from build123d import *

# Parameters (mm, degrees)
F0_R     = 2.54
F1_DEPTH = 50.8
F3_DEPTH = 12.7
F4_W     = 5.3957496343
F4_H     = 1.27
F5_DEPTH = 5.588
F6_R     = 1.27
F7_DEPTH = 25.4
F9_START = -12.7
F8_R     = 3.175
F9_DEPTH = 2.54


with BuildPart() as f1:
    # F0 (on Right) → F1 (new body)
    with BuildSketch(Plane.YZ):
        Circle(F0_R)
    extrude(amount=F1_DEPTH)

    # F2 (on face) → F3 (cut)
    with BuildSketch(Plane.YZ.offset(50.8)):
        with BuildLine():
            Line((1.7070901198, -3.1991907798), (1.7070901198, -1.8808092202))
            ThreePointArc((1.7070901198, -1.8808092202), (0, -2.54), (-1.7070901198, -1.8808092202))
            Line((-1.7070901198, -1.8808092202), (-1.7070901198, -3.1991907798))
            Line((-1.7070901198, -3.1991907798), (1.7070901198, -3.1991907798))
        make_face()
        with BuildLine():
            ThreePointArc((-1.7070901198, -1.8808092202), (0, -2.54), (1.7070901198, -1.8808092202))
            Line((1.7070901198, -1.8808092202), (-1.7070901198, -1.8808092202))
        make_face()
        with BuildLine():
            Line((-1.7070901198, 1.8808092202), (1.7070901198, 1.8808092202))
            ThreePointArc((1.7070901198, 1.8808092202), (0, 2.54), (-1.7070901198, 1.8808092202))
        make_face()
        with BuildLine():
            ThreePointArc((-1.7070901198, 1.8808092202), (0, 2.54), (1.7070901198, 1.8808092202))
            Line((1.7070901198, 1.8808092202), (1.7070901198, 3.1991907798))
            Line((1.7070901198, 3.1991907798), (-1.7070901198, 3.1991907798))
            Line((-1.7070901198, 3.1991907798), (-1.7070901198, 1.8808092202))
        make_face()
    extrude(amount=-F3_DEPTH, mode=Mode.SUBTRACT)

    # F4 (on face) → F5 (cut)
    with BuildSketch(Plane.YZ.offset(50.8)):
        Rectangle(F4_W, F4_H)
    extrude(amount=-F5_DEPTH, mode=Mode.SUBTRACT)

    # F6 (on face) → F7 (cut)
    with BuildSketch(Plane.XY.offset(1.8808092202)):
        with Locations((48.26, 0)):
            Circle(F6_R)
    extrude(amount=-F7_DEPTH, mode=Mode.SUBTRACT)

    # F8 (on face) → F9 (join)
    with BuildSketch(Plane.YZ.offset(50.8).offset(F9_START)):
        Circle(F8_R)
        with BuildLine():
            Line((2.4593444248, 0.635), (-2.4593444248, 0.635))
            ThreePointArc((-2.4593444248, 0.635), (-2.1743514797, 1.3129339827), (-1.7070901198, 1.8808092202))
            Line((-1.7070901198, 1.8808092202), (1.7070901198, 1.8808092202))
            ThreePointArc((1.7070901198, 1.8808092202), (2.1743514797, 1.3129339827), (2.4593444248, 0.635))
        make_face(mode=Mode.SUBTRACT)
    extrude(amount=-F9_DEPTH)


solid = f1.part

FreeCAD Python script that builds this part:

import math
import FreeCAD as App
import Part
import Sketcher

V = App.Vector
Q = App.Units.Quantity

doc = App.newDocument("Part")
body = doc.addObject("PartDesign::Body", "Body")

# Sketch on YZ plane
sketch1 = body.newObject("Sketcher::SketchObject", "Sketch")
sketch1.AttachmentSupport = (doc.getObject("YZ_Plane"), [""])
sketch1.MapMode = "FlatFace"
sketch1.addGeometry(Part.Circle(V(0, 0, 0), V(0, 0, 1), 2.54), False)
sketch1.addConstraint(Sketcher.Constraint("Coincident", 0, 3, -1, 1))
sketch1.addConstraint(Sketcher.Constraint("Diameter", 0, Q("0.2 in")))
pad1 = body.newObject("PartDesign::Pad", "Pad")
pad1.Profile = sketch1
pad1.Length = Q("2 in")

# Sketch on YZ plane
sketch2 = body.newObject("Sketcher::SketchObject", "Sketch001")
sketch2.AttachmentSupport = (doc.getObject("YZ_Plane"), [""])
sketch2.MapMode = "FlatFace"
sketch2.AttachmentOffset = App.Placement(V(0, 0, 2 * 25.4), App.Rotation())
sketch2.addGeometry(Part.LineSegment(V(1.70709, -3.199191, 0), V(1.70709, -1.880809, 0)), False)
sketch2.addGeometry(Part.LineSegment(V(1.70709, -1.880809, 0), V(-1.70709, -1.880809, 0)), False)
sketch2.addGeometry(Part.LineSegment(V(-1.70709, -1.880809, 0), V(-1.70709, -3.199191, 0)), False)
sketch2.addGeometry(Part.LineSegment(V(-1.70709, -3.199191, 0), V(1.70709, -3.199191, 0)), False)
sketch2.addGeometry(Part.LineSegment(V(-1.70709, 1.880809, 0), V(1.70709, 1.880809, 0)), False)
sketch2.addGeometry(Part.LineSegment(V(1.70709, 1.880809, 0), V(1.70709, 3.199191, 0)), False)
sketch2.addGeometry(Part.LineSegment(V(1.70709, 3.199191, 0), V(-1.70709, 3.199191, 0)), False)
sketch2.addGeometry(Part.LineSegment(V(-1.70709, 3.199191, 0), V(-1.70709, 1.880809, 0)), False)
sketch2.addConstraint(Sketcher.Constraint("Coincident", 0, 2, 1, 1))
sketch2.addConstraint(Sketcher.Constraint("Coincident", 1, 2, 2, 1))
sketch2.addConstraint(Sketcher.Constraint("Coincident", 2, 2, 3, 1))
sketch2.addConstraint(Sketcher.Constraint("Coincident", 3, 2, 0, 1))
sketch2.addConstraint(Sketcher.Constraint("Coincident", 4, 2, 5, 1))
sketch2.addConstraint(Sketcher.Constraint("Coincident", 5, 2, 6, 1))
sketch2.addConstraint(Sketcher.Constraint("Coincident", 6, 2, 7, 1))
sketch2.addConstraint(Sketcher.Constraint("Coincident", 7, 2, 4, 1))
sketch2.addConstraint(Sketcher.Constraint("Vertical", 0))
sketch2.addConstraint(Sketcher.Constraint("Horizontal", 1))
sketch2.addConstraint(Sketcher.Constraint("Vertical", 2))
sketch2.addConstraint(Sketcher.Constraint("Horizontal", 3))
sketch2.addConstraint(Sketcher.Constraint("Horizontal", 4))
sketch2.addConstraint(Sketcher.Constraint("Vertical", 5))
sketch2.addConstraint(Sketcher.Constraint("Horizontal", 6))
sketch2.addConstraint(Sketcher.Constraint("Vertical", 7))
sketch2.addConstraint(Sketcher.Constraint("Symmetric", 1, 2, 4, 2, -1, 1))
sketch2.addConstraint(Sketcher.Constraint("Symmetric", 3, 2, 6, 2, -1, 1))
sketch2.addConstraint(Sketcher.Constraint("Vertical", 3, 2, 4, 2))
sketch2.addConstraint(Sketcher.Constraint("DistanceY", 3, 2, 4, 2, Q("0.2 in")))
sketch2.addConstraint(Sketcher.Constraint("DistanceX", 1, 2, 1, 1, 3.41418))
sketch2.addConstraint(Sketcher.Constraint("DistanceY", 0, 1, 0, 2, 1.318382))
pocket1 = body.newObject("PartDesign::Pocket", "Pocket")
pocket1.Profile = sketch2
pocket1.Length = Q("0.5 in")

# Sketch on YZ plane
sketch3 = body.newObject("Sketcher::SketchObject", "Sketch002")
sketch3.AttachmentSupport = (doc.getObject("YZ_Plane"), [""])
sketch3.MapMode = "FlatFace"
sketch3.AttachmentOffset = App.Placement(V(0, 0, 2 * 25.4), App.Rotation())
sketch3.addGeometry(Part.LineSegment(V(-2.697875, 0.635, 0), V(-2.697875, -0.635, 0)), False)
sketch3.addGeometry(Part.LineSegment(V(-2.697875, -0.635, 0), V(2.697875, -0.635, 0)), False)
sketch3.addGeometry(Part.LineSegment(V(2.697875, -0.635, 0), V(2.697875, 0.635, 0)), False)
sketch3.addGeometry(Part.LineSegment(V(2.697875, 0.635, 0), V(-2.697875, 0.635, 0)), False)
sketch3.addConstraint(Sketcher.Constraint("Coincident", 0, 2, 1, 1))
sketch3.addConstraint(Sketcher.Constraint("Coincident", 1, 2, 2, 1))
sketch3.addConstraint(Sketcher.Constraint("Coincident", 2, 2, 3, 1))
sketch3.addConstraint(Sketcher.Constraint("Coincident", 3, 2, 0, 1))
sketch3.addConstraint(Sketcher.Constraint("Vertical", 0))
sketch3.addConstraint(Sketcher.Constraint("Horizontal", 1))
sketch3.addConstraint(Sketcher.Constraint("Vertical", 2))
sketch3.addConstraint(Sketcher.Constraint("Horizontal", 3))
sketch3.addConstraint(Sketcher.Constraint("Symmetric", 0, 2, 2, 2, -1, 1))
sketch3.addConstraint(Sketcher.Constraint("DistanceY", 0, 2, 0, 1, Q("0.05 in")))
sketch3.addConstraint(Sketcher.Constraint("DistanceX", 1, 1, 1, 2, 5.39575))
pocket2 = body.newObject("PartDesign::Pocket", "Pocket001")
pocket2.Profile = sketch3
pocket2.Length = Q("0.22 in")

# Sketch on XY plane
sketch4 = body.newObject("Sketcher::SketchObject", "Sketch003")
sketch4.AttachmentSupport = (doc.getObject("XY_Plane"), [""])
sketch4.MapMode = "FlatFace"
sketch4.AttachmentOffset = App.Placement(V(0, 0, 1.880809), App.Rotation())
sketch4.addGeometry(Part.Circle(V(48.26, 0, 0), V(0, 0, 1), 1.27), False)
sketch4.addConstraint(Sketcher.Constraint("PointOnObject", 0, 3, -1))
sketch4.addConstraint(Sketcher.Constraint("Diameter", 0, Q("0.1 in")))
sketch4.addConstraint(Sketcher.Constraint("DistanceX", -1, 1, 0, 3, Q("1.9 in")))
pocket3 = body.newObject("PartDesign::Pocket", "Pocket002")
pocket3.Profile = sketch4
pocket3.Length = Q("1 in")

# Sketch on YZ plane
sketch5 = body.newObject("Sketcher::SketchObject", "Sketch004")
sketch5.AttachmentSupport = (doc.getObject("YZ_Plane"), [""])
sketch5.MapMode = "FlatFace"
sketch5.AttachmentOffset = App.Placement(V(0, 0, 1.5 * 25.4), App.Rotation())
sketch5.addGeometry(Part.Circle(V(0, 0, 0), V(0, 0, 1), 3.175), False)
sketch5.addGeometry(Part.ArcOfCircle(Part.Circle(V(0, 0, 0), V(0, 0, 1), 2.54), math.radians(14.477512), math.radians(47.771985)), False)
sketch5.addGeometry(Part.LineSegment(V(2.459344, 0.635, 0), V(-2.459344, 0.635, 0)), False)
sketch5.addGeometry(Part.ArcOfCircle(Part.Circle(V(0, 0, 0), V(0, 0, 1), 2.54), math.radians(132.228015), math.radians(165.522488)), False)
sketch5.addGeometry(Part.LineSegment(V(-1.70709, 1.880809, 0), V(1.70709, 1.880809, 0)), False)
sketch5.addConstraint(Sketcher.Constraint("Coincident", 1, 1, 2, 1))
sketch5.addConstraint(Sketcher.Constraint("Coincident", 2, 2, 3, 2))
sketch5.addConstraint(Sketcher.Constraint("Coincident", 3, 1, 4, 1))
sketch5.addConstraint(Sketcher.Constraint("Coincident", 4, 2, 1, 2))
sketch5.addConstraint(Sketcher.Constraint("Horizontal", 2))
sketch5.addConstraint(Sketcher.Constraint("Horizontal", 4))
sketch5.addConstraint(Sketcher.Constraint("Coincident", 0, 3, -1, 1))
sketch5.addConstraint(Sketcher.Constraint("Coincident", 1, 3, -1, 1))
sketch5.addConstraint(Sketcher.Constraint("Coincident", 3, 3, -1, 1))
sketch5.addConstraint(Sketcher.Constraint("Equal", 1, 3))
sketch5.addConstraint(Sketcher.Constraint("Radius", 1, Q("0.1 in")))
sketch5.addConstraint(Sketcher.Constraint("Diameter", 0, Q("0.25 in")))
sketch5.addConstraint(Sketcher.Constraint("DistanceY", -1, 1, 1, 1, Q("0.025 in")))
sketch5.addConstraint(Sketcher.Constraint("DistanceX", 4, 1, 4, 2, 3.41418))
pad2 = body.newObject("PartDesign::Pad", "Pad001")
pad2.Profile = sketch5
pad2.Length = Q("0.1 in")
pad2.Reversed = True

doc.recompute()
